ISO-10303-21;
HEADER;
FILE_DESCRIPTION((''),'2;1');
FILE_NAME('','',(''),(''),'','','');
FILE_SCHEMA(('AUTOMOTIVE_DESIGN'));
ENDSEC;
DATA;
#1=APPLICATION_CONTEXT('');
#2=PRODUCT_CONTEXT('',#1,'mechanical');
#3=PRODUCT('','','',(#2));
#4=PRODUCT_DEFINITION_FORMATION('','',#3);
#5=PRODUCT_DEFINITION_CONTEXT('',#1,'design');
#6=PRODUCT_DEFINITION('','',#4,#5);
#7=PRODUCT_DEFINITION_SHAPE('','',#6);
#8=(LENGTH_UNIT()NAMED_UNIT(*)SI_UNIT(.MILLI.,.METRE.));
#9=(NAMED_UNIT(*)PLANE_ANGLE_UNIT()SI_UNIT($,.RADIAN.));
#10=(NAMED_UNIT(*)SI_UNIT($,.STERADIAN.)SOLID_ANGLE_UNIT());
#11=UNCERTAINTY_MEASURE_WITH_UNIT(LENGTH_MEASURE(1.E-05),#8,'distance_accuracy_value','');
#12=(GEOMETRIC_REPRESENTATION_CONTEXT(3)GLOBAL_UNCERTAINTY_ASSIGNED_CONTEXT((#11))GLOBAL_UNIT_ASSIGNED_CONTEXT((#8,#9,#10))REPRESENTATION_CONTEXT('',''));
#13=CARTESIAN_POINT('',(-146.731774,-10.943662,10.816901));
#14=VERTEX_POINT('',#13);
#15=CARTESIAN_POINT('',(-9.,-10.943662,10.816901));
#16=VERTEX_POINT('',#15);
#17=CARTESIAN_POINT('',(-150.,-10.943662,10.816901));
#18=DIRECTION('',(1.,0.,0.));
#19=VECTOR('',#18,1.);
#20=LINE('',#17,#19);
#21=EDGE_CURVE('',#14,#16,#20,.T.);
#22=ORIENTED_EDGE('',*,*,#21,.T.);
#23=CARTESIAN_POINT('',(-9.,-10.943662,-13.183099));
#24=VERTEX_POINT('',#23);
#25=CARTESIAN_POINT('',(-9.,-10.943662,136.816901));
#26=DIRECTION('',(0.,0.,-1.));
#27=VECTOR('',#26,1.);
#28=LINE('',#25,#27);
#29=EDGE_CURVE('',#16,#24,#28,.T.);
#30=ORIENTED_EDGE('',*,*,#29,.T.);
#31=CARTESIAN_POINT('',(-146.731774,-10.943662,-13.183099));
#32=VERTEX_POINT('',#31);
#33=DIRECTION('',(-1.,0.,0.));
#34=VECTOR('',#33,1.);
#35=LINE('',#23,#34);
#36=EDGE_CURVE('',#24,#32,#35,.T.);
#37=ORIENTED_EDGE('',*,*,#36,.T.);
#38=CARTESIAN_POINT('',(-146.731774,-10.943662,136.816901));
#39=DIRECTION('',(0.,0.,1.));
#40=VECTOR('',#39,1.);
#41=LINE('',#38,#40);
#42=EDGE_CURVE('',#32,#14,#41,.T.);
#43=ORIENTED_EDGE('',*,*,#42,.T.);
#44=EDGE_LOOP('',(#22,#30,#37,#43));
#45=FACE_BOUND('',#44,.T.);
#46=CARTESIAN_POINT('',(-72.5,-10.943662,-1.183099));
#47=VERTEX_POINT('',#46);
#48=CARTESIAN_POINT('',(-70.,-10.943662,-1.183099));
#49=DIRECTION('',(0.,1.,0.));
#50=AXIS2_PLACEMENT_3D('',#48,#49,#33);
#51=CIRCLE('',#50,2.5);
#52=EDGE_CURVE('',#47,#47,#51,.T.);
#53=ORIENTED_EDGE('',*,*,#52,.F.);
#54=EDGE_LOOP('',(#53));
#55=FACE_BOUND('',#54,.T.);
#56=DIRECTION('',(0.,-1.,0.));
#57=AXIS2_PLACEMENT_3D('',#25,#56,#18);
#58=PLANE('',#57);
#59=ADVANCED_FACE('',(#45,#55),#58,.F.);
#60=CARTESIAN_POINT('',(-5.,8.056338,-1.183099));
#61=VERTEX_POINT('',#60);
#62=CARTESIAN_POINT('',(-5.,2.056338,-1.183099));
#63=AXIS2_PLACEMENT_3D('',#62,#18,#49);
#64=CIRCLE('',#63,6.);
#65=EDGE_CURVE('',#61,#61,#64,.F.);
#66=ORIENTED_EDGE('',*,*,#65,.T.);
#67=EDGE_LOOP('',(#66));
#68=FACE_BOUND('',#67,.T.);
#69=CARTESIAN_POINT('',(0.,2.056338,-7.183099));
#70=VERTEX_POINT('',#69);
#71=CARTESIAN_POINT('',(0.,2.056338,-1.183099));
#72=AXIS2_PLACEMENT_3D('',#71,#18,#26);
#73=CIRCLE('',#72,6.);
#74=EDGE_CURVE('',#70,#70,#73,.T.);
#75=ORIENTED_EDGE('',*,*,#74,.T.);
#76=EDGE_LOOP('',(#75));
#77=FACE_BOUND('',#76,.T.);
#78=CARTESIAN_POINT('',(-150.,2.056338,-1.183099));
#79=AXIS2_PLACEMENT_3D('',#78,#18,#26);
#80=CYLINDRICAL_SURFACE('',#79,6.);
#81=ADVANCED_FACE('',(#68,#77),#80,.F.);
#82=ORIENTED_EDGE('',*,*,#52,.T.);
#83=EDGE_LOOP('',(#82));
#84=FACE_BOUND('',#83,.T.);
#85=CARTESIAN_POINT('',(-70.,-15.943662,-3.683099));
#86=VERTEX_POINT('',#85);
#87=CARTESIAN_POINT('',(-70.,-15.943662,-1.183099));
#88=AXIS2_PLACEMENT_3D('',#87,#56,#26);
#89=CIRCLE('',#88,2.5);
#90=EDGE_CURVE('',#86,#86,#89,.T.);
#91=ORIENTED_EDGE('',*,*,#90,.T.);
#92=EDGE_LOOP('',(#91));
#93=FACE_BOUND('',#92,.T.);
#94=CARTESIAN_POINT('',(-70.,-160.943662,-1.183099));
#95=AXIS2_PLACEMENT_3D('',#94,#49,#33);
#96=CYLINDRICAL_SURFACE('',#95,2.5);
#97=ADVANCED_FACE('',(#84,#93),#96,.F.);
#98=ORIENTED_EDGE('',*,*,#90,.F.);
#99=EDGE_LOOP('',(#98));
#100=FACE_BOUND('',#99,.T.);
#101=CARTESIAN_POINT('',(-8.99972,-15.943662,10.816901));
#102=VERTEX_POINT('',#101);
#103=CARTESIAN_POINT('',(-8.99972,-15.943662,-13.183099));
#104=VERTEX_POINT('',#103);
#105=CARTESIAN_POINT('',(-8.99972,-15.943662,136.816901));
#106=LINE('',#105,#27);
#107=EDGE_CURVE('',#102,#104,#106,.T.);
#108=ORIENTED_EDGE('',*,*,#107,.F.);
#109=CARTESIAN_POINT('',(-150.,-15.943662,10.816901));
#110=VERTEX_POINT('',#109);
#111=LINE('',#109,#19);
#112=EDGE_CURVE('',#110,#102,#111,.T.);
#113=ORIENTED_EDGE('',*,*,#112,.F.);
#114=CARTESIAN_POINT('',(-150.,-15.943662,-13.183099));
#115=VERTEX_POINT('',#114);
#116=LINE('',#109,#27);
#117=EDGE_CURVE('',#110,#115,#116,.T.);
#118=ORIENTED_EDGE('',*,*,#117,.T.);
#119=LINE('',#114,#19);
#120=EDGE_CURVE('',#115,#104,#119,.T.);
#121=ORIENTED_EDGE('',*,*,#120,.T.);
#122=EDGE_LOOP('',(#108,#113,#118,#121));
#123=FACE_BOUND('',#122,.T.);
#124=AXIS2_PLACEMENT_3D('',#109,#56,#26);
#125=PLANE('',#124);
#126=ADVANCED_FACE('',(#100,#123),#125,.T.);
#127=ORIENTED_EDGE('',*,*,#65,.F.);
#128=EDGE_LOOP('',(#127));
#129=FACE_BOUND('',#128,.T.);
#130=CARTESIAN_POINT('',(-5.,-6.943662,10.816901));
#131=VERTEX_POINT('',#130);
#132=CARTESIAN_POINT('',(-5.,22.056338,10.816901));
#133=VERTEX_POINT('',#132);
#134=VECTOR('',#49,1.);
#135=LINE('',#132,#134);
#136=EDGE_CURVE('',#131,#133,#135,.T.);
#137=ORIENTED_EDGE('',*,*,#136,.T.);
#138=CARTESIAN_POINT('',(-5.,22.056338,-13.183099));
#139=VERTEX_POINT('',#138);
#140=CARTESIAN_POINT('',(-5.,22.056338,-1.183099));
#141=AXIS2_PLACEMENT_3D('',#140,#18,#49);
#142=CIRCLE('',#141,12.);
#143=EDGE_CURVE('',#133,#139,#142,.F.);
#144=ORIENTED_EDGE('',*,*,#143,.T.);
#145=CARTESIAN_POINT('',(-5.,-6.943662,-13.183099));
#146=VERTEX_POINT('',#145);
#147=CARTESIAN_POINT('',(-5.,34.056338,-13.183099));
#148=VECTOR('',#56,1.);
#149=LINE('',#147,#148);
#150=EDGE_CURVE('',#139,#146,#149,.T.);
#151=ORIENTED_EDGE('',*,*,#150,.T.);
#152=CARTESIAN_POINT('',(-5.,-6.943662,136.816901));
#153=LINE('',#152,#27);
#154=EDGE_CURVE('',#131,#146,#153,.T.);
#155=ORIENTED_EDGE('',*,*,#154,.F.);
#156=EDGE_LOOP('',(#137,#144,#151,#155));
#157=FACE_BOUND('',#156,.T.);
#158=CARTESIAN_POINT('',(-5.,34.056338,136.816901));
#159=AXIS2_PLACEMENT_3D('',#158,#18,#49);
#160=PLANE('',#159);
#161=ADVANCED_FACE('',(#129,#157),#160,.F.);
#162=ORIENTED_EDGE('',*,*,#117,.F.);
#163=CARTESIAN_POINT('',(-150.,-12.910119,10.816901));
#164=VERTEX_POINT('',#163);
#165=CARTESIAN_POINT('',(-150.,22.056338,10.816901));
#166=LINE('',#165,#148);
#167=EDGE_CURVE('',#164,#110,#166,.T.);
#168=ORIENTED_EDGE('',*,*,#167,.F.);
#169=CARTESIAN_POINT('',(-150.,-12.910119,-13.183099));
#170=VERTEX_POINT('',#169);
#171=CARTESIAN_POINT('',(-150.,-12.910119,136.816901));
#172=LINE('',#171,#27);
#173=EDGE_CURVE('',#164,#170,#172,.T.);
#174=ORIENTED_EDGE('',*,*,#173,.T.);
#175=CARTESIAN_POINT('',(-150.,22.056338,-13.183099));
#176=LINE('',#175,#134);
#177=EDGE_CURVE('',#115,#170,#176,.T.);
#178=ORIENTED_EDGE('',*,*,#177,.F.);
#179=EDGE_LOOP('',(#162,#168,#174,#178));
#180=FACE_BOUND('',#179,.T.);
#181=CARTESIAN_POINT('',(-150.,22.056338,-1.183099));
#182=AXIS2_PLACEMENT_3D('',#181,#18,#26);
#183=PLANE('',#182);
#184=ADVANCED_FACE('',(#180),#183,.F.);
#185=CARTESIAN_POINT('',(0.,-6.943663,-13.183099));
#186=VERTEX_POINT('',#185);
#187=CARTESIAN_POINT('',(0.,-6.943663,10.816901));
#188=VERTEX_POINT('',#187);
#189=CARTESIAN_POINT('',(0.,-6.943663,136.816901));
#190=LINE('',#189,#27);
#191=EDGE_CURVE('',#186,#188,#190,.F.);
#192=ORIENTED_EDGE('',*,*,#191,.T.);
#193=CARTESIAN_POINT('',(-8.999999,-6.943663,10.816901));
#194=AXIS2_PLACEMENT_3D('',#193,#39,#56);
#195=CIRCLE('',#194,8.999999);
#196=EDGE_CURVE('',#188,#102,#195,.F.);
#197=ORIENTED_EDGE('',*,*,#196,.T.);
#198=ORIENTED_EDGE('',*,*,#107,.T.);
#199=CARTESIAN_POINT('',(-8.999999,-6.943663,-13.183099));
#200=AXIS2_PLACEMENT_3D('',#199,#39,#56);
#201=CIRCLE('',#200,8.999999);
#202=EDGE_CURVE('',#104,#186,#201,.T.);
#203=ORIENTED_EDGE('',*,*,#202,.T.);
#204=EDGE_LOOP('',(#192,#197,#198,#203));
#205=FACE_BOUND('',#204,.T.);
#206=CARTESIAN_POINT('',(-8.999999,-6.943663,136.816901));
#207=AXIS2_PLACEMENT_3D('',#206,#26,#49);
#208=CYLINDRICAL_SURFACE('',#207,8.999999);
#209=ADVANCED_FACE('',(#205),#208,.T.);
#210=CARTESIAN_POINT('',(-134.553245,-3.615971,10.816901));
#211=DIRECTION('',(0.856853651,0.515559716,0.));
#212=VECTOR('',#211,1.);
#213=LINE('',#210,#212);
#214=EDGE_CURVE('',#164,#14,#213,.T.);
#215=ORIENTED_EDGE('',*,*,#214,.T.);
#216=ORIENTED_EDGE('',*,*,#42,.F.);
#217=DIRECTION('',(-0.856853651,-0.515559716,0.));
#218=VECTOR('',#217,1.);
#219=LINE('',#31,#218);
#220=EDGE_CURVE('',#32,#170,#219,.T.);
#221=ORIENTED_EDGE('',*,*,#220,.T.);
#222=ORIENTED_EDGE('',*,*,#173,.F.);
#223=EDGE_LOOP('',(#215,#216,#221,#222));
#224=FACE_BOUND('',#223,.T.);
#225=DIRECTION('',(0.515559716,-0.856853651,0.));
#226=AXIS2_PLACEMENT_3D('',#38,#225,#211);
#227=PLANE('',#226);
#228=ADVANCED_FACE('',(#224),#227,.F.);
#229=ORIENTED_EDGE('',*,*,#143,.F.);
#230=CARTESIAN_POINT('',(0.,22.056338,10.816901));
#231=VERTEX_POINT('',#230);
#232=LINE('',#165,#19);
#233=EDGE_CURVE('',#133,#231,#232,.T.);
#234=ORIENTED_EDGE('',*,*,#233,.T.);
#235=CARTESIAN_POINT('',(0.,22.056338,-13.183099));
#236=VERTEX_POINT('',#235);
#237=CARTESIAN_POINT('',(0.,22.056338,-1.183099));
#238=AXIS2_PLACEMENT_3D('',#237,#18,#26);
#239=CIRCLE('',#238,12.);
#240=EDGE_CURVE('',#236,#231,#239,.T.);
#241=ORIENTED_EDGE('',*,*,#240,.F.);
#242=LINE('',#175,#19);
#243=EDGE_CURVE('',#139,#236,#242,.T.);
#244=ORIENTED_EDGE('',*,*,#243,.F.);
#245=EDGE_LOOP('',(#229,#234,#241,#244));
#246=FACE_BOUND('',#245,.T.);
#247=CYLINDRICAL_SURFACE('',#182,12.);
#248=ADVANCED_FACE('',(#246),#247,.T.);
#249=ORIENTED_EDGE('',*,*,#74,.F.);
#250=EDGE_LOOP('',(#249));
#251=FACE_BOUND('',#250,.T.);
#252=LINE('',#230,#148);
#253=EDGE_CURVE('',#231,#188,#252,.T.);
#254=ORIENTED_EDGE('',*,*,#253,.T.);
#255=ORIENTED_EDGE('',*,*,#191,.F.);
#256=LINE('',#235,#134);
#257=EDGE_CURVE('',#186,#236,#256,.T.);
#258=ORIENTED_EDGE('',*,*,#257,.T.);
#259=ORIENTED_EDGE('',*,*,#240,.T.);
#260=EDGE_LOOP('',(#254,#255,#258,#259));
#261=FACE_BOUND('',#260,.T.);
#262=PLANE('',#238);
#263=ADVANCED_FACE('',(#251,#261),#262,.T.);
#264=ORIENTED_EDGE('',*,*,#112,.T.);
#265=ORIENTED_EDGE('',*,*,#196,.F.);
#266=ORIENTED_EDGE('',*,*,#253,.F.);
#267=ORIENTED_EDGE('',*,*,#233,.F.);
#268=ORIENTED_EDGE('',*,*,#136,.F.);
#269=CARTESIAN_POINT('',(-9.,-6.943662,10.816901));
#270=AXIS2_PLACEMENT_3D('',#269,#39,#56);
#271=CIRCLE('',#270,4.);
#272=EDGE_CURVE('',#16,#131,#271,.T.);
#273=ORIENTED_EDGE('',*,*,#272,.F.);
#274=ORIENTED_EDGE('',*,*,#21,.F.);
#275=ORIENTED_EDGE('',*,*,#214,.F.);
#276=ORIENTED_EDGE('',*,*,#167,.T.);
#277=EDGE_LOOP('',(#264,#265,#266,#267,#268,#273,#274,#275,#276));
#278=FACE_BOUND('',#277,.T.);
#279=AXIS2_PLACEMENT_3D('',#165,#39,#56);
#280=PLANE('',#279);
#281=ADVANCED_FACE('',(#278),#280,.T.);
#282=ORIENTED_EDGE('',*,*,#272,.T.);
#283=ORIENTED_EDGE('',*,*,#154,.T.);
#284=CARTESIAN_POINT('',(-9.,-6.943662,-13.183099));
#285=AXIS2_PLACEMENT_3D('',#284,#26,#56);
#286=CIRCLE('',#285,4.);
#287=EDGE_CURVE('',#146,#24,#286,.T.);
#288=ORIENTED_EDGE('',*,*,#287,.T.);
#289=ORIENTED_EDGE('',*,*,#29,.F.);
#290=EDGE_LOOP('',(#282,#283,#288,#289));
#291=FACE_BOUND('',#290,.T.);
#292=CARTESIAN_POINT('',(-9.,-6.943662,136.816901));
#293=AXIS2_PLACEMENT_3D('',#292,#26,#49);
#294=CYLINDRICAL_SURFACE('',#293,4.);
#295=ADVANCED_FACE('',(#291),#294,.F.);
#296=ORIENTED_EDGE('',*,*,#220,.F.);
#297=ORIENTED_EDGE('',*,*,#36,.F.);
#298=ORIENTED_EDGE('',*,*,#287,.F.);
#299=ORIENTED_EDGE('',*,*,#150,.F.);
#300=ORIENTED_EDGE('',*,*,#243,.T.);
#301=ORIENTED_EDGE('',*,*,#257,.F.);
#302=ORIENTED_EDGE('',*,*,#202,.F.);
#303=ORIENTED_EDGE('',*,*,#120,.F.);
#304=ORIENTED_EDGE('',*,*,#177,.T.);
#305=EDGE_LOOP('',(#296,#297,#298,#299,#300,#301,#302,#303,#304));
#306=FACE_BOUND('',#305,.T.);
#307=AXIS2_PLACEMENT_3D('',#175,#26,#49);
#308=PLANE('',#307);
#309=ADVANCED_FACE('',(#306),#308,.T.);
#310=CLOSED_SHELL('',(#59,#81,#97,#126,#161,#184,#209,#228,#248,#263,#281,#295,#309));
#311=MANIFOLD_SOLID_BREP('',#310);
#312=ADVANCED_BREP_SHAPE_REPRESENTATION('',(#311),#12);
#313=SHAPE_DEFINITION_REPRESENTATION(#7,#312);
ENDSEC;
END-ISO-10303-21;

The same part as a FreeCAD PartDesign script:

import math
import FreeCAD as App
import Part
import Sketcher

V = App.Vector
Q = App.Units.Quantity


def add_polygon(sketch, points):
    """Adds a closed chain of lines whose ends are joined by coincident constraints."""
    first, n = sketch.GeometryCount, len(points)
    for a, b in zip(points, points[1:] + points[:1]):
        sketch.addGeometry(Part.LineSegment(App.Vector(*a, 0), App.Vector(*b, 0)), False)
    for i in range(n):
        sketch.addConstraint(Sketcher.Constraint("Coincident", first + i, 2, first + (i + 1) % n, 1))

doc = App.newDocument("Part")
body = doc.addObject("PartDesign::Body", "Body")

# Sketch on YZ plane
sketch1 = body.newObject("Sketcher::SketchObject", "Sketch")
sketch1.AttachmentSupport = (doc.getObject("YZ_Plane"), [""])
sketch1.MapMode = "FlatFace"
sketch1.addGeometry([
    Part.LineSegment(V(22, 11, 0), V(-16, 11, 0)),  # 0
    Part.LineSegment(V(-16, 11, 0), V(-16, -13, 0)),  # 1
    Part.LineSegment(V(-16, -13, 0), V(22, -13, 0)),  # 2
    Part.ArcOfCircle(Part.Circle(V(22, -1, 0), V(0, 0, 1), 12), math.radians(-90), math.radians(90)),  # 3
    Part.Circle(V(2, -1, 0), V(0, 0, 1), 6),  # 4
], False)
sketch1.addConstraint([
    Sketcher.Constraint("Coincident", 0, 2, 1, 1),
    Sketcher.Constraint("Coincident", 1, 2, 2, 1),
    Sketcher.Constraint("Tangent", 2, 2, 3, 1),
    Sketcher.Constraint("Tangent", 3, 2, 0, 1),
    Sketcher.Constraint("Horizontal", 0),
    Sketcher.Constraint("Vertical", 1),
    Sketcher.Constraint("Horizontal", 2),
    Sketcher.Constraint("Horizontal", 3, 3, 4, 3),
    Sketcher.Constraint("Diameter", 4, Q("12 mm")),
    Sketcher.Constraint("Radius", 3, Q("12 mm")),
    Sketcher.Constraint("DistanceX", 0, 2, 0, 1, Q("38 mm")),
    Sketcher.Constraint("DistanceX", 4, 3, 3, 3, Q("20 mm")),
    Sketcher.Constraint("DistanceY", 3, 3, -1, 1, Q("1.183099 mm")),
    Sketcher.Constraint("DistanceX", -1, 1, 3, 3, Q("22.056338 mm")),
])
pad1 = body.newObject("PartDesign::Pad", "Pad")
pad1.Profile = sketch1
pad1.Length = 150
pad1.Reversed = True

# Sketch on XY plane
sketch2 = body.newObject("Sketcher::SketchObject", "Sketch001")
sketch2.AttachmentSupport = (doc.getObject("XY_Plane"), [""])
sketch2.MapMode = "FlatFace"
sketch2.AttachmentOffset = App.Placement(V(0, 0, -13.183099), App.Rotation())
sketch2.addGeometry([
    Part.LineSegment(V(-5, 34.1, 0), V(-5, -6.9, 0)),  # 0
    Part.ArcOfCircle(Part.Circle(V(-9, -6.9, 0), V(0, 0, 1), 4), math.radians(-90), math.radians(0)),  # 1
    Part.LineSegment(V(-9, -10.9, 0), V(-150, -10.9, 0)),  # 2
    Part.LineSegment(V(-150, -10.9, 0), V(-150, 34.1, 0)),  # 3
    Part.LineSegment(V(-150, 34.1, 0), V(-5, 34.1, 0)),  # 4
], False)
sketch2.addConstraint([
    Sketcher.Constraint("Tangent", 0, 2, 1, 2),
    Sketcher.Constraint("Tangent", 1, 1, 2, 1),
    Sketcher.Constraint("Coincident", 2, 2, 3, 1),
    Sketcher.Constraint("Coincident", 3, 2, 4, 1),
    Sketcher.Constraint("Coincident", 4, 2, 0, 1),
    Sketcher.Constraint("Vertical", 0),
    Sketcher.Constraint("Horizontal", 2),
    Sketcher.Constraint("Vertical", 3),
    Sketcher.Constraint("Horizontal", 4),
    Sketcher.Constraint("Radius", 1, Q("4 mm")),
    Sketcher.Constraint("DistanceX", 2, 2, 2, 1, Q("141 mm")),
    Sketcher.Constraint("DistanceY", 0, 2, 0, 1, Q("41 mm")),
    Sketcher.Constraint("DistanceX", 1, 3, -1, 1, Q("9 mm")),
    Sketcher.Constraint("DistanceY", 1, 3, -1, 1, Q("6.943662 mm")),
])
pocket1 = body.newObject("PartDesign::Pocket", "Pocket")
pocket1.Profile = sketch2
pocket1.Length = 150
pocket1.Reversed = True

# Sketch on XY plane
sketch3 = body.newObject("Sketcher::SketchObject", "Sketch002")
sketch3.AttachmentSupport = (doc.getObject("XY_Plane"), [""])
sketch3.MapMode = "FlatFace"
sketch3.AttachmentOffset = App.Placement(V(0, 0, -13.183099), App.Rotation())
add_polygon(sketch3, [(-146.7, -10.9), (-150, -12.9), (-150, -10.9)])  # lines 0-2
sketch3.addGeometry(Part.LineSegment(V(0, -6.9, 0), V(0, -15.9, 0)), False)  # 3
sketch3.addGeometry(Part.LineSegment(V(0, -15.9, 0), V(-9, -15.9, 0)), False)  # 4
sketch3.addGeometry(Part.ArcOfCircle(Part.Circle(V(-9, -6.9, 0), V(0, 0, 1), 9), math.radians(-90), math.radians(0)), False)  # 5
sketch3.addConstraint([
    Sketcher.Constraint("Coincident", 3, 2, 4, 1),
    Sketcher.Constraint("Coincident", 4, 2, 5, 1),
    Sketcher.Constraint("Tangent", 5, 2, 3, 1),
    Sketcher.Constraint("Vertical", 1),
    Sketcher.Constraint("Horizontal", 2),
    Sketcher.Constraint("Vertical", 3),
    Sketcher.Constraint("Horizontal", 4),
    Sketcher.Constraint("PointOnObject", 3, 2, -2),
    Sketcher.Constraint("Radius", 5, Q("8.999999 mm")),
    Sketcher.Constraint("DistanceX", 0, 2, -1, 1, Q("150 mm")),
    Sketcher.Constraint("DistanceY", 1, 2, 5, 3, Q("3.999999 mm")),
    Sketcher.Constraint("DistanceX", 4, 2, 4, 1, Q("8.99972 mm")),
    Sketcher.Constraint("DistanceX", 2, 1, 2, 2, Q("3.268226 mm")),
    Sketcher.Constraint("DistanceY", 1, 1, 1, 2, Q("1.966457 mm")),
    Sketcher.Constraint("DistanceY", 0, 2, -1, 1, Q("12.910119 mm")),
])
pocket2 = body.newObject("PartDesign::Pocket", "Pocket001")
pocket2.Profile = sketch3
pocket2.Length = 150
pocket2.Reversed = True

# Sketch on XZ plane
sketch4 = body.newObject("Sketcher::SketchObject", "Sketch003")
sketch4.AttachmentSupport = (doc.getObject("XZ_Plane"), [""])
sketch4.MapMode = "FlatFace"
sketch4.AttachmentOffset = App.Placement(V(0, 0, 10.943662), App.Rotation())
sketch4.addGeometry(Part.Circle(V(-70, -1.2, 0), V(0, 0, 1), 2.5), False)
sketch4.addConstraint([
    Sketcher.Constraint("Diameter", 0, Q("5 mm")),
    Sketcher.Constraint("DistanceX", 0, 3, -1, 1, Q("70 mm")),
    Sketcher.Constraint("DistanceY", 0, 3, -1, 1, Q("1.183099 mm")),
])
pocket3 = body.newObject("PartDesign::Pocket", "Pocket002")
pocket3.Profile = sketch4
pocket3.Length = 150
pocket3.Reversed = True

doc.recompute()
